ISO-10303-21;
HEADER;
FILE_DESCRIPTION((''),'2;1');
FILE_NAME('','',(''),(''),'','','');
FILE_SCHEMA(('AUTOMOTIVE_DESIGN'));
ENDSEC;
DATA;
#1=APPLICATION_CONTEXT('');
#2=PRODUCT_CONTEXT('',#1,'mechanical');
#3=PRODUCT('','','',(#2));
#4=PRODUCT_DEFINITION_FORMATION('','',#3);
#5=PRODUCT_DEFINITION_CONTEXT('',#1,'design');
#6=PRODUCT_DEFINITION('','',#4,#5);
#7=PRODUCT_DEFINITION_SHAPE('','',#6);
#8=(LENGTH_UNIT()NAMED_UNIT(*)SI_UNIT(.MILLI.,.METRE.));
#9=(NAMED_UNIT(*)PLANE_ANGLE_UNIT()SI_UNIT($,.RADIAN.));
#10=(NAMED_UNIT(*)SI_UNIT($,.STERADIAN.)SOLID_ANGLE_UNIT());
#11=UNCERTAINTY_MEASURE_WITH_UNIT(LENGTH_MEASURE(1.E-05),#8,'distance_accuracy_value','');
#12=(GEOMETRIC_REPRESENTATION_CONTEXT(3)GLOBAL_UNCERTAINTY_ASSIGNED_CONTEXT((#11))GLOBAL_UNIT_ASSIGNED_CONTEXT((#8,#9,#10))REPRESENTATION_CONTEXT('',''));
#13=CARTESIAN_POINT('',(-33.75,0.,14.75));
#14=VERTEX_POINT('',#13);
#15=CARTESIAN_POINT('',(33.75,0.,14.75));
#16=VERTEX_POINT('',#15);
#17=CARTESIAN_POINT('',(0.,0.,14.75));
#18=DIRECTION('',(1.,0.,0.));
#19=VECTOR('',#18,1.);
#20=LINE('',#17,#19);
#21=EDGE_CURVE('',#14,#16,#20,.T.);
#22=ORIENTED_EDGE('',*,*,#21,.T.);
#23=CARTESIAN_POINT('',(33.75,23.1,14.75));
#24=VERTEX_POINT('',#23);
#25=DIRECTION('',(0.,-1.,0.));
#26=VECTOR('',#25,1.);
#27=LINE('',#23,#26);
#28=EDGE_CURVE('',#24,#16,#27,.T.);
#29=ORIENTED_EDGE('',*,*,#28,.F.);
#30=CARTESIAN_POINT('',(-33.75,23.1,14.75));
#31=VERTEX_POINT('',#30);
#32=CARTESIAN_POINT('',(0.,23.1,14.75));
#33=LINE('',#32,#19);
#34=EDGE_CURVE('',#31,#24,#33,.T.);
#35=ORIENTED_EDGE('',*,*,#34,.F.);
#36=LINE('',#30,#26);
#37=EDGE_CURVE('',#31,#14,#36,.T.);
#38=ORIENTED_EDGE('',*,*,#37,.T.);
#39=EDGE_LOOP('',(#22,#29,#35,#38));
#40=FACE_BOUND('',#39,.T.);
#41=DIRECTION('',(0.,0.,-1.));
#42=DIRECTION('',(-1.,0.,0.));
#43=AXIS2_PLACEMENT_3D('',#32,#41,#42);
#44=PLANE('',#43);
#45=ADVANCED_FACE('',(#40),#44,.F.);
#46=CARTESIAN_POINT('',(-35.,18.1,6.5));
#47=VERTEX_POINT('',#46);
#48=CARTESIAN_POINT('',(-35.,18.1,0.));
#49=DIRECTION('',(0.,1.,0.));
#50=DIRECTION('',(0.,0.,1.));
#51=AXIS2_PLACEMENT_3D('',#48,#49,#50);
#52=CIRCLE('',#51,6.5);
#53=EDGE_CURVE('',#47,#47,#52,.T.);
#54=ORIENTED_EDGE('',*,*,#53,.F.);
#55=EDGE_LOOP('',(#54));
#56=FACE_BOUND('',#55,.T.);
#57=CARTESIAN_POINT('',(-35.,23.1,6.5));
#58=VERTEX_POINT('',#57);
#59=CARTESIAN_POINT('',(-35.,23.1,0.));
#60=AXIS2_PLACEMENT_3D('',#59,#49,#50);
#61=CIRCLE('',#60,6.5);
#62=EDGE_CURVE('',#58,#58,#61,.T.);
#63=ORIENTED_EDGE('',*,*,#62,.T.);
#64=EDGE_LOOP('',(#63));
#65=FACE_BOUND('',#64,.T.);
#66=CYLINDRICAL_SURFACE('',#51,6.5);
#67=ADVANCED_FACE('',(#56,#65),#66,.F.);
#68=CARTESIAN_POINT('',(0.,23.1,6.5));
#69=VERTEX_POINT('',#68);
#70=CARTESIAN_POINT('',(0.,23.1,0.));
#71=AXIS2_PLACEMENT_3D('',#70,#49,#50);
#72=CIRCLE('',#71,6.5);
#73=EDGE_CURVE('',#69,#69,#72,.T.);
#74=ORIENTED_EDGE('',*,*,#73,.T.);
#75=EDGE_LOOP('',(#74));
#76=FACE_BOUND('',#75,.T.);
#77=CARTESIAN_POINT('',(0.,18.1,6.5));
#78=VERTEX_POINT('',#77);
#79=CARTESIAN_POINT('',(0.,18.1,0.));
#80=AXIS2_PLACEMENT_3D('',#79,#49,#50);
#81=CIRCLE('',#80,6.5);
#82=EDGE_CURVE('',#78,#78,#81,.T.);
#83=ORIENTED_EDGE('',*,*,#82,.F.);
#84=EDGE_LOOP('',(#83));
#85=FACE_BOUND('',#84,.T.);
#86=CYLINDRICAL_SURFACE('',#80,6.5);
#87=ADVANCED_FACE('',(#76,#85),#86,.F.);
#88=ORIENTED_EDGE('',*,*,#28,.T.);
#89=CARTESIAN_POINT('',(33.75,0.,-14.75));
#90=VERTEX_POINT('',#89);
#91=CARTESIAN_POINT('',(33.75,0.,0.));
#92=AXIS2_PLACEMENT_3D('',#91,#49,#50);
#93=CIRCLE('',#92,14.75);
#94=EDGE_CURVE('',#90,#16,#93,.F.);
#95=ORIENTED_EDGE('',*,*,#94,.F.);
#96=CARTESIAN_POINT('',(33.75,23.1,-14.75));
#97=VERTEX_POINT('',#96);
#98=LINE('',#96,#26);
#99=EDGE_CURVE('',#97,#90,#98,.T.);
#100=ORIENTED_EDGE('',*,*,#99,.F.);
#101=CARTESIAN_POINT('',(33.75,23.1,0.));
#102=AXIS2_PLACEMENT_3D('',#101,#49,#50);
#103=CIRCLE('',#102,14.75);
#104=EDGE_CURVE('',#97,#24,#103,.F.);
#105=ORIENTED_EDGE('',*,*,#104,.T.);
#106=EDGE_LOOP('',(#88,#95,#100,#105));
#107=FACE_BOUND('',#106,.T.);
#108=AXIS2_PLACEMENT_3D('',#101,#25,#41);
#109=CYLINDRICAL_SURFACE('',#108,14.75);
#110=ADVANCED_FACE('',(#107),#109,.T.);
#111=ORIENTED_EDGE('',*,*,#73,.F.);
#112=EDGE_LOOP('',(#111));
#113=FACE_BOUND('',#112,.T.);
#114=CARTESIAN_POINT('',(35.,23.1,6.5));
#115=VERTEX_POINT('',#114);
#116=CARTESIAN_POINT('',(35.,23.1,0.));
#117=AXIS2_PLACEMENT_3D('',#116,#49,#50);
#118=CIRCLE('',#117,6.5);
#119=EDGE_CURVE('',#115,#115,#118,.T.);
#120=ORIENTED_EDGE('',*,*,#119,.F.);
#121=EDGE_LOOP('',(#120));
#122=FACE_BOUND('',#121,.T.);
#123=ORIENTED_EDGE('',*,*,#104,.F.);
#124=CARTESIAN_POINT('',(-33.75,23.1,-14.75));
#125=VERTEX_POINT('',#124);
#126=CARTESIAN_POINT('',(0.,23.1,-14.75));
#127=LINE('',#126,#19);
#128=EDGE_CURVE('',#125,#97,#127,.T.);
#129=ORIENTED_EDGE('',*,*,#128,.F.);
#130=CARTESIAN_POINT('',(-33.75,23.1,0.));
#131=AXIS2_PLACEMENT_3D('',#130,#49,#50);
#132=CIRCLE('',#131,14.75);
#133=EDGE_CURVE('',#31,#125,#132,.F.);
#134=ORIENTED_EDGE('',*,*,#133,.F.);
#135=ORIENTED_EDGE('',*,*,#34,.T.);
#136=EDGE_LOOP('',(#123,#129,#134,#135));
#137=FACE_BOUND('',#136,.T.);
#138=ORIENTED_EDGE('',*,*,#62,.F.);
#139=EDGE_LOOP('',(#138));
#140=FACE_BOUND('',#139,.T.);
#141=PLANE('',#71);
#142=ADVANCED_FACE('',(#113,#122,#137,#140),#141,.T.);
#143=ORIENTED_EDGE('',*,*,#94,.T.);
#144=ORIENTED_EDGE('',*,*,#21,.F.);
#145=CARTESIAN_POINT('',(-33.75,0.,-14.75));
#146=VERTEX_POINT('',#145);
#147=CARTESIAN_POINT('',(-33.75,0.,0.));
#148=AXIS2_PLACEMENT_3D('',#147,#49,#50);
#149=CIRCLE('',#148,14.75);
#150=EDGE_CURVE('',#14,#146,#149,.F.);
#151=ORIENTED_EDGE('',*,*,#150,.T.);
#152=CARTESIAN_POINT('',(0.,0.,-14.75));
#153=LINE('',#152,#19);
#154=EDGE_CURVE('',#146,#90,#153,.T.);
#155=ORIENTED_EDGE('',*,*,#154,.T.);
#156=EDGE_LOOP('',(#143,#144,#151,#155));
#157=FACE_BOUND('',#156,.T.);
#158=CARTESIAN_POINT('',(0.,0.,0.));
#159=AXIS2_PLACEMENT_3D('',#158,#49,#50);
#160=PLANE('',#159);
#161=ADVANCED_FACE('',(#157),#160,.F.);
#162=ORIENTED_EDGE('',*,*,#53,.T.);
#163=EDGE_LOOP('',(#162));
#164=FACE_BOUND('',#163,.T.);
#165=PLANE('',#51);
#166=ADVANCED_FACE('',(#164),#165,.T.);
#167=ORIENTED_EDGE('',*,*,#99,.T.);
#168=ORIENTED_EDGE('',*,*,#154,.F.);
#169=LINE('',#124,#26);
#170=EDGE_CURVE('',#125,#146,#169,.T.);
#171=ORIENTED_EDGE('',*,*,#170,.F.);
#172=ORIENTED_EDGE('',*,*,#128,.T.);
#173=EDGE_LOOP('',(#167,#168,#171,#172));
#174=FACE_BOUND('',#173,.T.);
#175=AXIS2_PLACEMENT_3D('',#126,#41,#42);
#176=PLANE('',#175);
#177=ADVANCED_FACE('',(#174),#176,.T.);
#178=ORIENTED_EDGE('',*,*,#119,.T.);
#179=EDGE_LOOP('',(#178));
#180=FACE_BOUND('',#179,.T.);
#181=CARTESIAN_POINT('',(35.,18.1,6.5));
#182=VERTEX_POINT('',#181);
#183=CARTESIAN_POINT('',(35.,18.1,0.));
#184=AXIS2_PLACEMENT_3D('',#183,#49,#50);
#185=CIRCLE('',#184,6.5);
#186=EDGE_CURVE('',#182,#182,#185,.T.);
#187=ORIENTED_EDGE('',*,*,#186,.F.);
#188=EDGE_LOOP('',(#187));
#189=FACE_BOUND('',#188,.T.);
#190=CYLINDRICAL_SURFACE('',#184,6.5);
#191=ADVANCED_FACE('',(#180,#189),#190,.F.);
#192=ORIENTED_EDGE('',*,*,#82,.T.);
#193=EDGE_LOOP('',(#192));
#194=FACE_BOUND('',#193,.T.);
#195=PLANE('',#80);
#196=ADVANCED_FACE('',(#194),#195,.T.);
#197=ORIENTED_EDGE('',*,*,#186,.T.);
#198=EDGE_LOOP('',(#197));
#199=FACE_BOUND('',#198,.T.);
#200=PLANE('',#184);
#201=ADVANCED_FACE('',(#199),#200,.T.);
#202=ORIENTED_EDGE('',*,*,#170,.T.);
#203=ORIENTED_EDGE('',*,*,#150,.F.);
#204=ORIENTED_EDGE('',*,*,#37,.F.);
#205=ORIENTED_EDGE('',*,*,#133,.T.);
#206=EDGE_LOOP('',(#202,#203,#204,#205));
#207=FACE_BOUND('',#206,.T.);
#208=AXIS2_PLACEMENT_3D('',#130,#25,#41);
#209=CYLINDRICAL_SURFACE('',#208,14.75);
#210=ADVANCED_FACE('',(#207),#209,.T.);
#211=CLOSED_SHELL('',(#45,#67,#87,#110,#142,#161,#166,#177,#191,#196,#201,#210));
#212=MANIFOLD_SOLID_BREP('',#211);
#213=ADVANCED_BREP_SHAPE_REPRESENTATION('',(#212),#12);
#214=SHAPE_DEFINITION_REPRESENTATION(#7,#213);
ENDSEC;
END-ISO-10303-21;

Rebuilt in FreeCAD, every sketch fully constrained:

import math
import FreeCAD as App
import Part
import Sketcher

V = App.Vector
Q = App.Units.Quantity

doc = App.newDocument("Part")
body = doc.addObject("PartDesign::Body", "Body")

# Sketch on XZ plane
sketch1 = body.newObject("Sketcher::SketchObject", "Sketch")
sketch1.AttachmentSupport = (doc.getObject("XZ_Plane"), [""])
sketch1.MapMode = "FlatFace"
sketch1.addGeometry([
    Part.ArcOfCircle(Part.Circle(V(34, 0, 0), V(0, 0, 1), 15), math.radians(-90), math.radians(90)),
    Part.LineSegment(V(34, -15, 0), V(-34, -15, 0)),
    Part.ArcOfCircle(Part.Circle(V(-34, 0, 0), V(0, 0, 1), 15), math.radians(90), math.radians(270)),
    Part.LineSegment(V(-34, 15, 0), V(34, 15, 0)),
], False)
sketch1.addConstraint([
    Sketcher.Constraint("Tangent", 0, 1, 1, 1),
    Sketcher.Constraint("Tangent", 1, 2, 2, 2),
    Sketcher.Constraint("Tangent", 2, 1, 3, 1),
    Sketcher.Constraint("Tangent", 3, 2, 0, 2),
    Sketcher.Constraint("Horizontal", 1),
    Sketcher.Constraint("Horizontal", 3),
    Sketcher.Constraint("Symmetric", 0, 3, 2, 3, -1, 1),
    Sketcher.Constraint("Radius", 0, Q("14.75 mm")),
    Sketcher.Constraint("DistanceX", 1, 2, 1, 1, Q("67.5 mm")),
])
pad1 = body.newObject("PartDesign::Pad", "Pad")
pad1.Profile = sketch1
pad1.Length = 23.1
pad1.Reversed = True

# Sketch on XZ plane
sketch2 = body.newObject("Sketcher::SketchObject", "Sketch001")
sketch2.AttachmentSupport = (doc.getObject("XZ_Plane"), [""])
sketch2.MapMode = "FlatFace"
sketch2.AttachmentOffset = App.Placement(V(0, 0, -23.1), App.Rotation())
sketch2.addGeometry([
    Part.Circle(V(0, 0, 0), V(0, 0, 1), 6),
    Part.Circle(V(-35, 0, 0), V(0, 0, 1), 6),
    Part.Circle(V(35, 0, 0), V(0, 0, 1), 6),
], False)
sketch2.addConstraint([
    Sketcher.Constraint("Coincident", 0, 3, -1, 1),
    Sketcher.Constraint("Equal", 0, 1),
    Sketcher.Constraint("Equal", 1, 2),
    Sketcher.Constraint("Symmetric", 1, 3, 2, 3, -1, 1),
    Sketcher.Constraint("PointOnObject", 1, 3, -1),
    Sketcher.Constraint("Diameter", 0, Q("13 mm")),
    Sketcher.Constraint("DistanceX", 1, 3, -1, 1, Q("35 mm")),
])
pocket1 = body.newObject("PartDesign::Pocket", "Pocket")
pocket1.Profile = sketch2
pocket1.Length = 5
pocket1.Reversed = True

doc.recompute()
